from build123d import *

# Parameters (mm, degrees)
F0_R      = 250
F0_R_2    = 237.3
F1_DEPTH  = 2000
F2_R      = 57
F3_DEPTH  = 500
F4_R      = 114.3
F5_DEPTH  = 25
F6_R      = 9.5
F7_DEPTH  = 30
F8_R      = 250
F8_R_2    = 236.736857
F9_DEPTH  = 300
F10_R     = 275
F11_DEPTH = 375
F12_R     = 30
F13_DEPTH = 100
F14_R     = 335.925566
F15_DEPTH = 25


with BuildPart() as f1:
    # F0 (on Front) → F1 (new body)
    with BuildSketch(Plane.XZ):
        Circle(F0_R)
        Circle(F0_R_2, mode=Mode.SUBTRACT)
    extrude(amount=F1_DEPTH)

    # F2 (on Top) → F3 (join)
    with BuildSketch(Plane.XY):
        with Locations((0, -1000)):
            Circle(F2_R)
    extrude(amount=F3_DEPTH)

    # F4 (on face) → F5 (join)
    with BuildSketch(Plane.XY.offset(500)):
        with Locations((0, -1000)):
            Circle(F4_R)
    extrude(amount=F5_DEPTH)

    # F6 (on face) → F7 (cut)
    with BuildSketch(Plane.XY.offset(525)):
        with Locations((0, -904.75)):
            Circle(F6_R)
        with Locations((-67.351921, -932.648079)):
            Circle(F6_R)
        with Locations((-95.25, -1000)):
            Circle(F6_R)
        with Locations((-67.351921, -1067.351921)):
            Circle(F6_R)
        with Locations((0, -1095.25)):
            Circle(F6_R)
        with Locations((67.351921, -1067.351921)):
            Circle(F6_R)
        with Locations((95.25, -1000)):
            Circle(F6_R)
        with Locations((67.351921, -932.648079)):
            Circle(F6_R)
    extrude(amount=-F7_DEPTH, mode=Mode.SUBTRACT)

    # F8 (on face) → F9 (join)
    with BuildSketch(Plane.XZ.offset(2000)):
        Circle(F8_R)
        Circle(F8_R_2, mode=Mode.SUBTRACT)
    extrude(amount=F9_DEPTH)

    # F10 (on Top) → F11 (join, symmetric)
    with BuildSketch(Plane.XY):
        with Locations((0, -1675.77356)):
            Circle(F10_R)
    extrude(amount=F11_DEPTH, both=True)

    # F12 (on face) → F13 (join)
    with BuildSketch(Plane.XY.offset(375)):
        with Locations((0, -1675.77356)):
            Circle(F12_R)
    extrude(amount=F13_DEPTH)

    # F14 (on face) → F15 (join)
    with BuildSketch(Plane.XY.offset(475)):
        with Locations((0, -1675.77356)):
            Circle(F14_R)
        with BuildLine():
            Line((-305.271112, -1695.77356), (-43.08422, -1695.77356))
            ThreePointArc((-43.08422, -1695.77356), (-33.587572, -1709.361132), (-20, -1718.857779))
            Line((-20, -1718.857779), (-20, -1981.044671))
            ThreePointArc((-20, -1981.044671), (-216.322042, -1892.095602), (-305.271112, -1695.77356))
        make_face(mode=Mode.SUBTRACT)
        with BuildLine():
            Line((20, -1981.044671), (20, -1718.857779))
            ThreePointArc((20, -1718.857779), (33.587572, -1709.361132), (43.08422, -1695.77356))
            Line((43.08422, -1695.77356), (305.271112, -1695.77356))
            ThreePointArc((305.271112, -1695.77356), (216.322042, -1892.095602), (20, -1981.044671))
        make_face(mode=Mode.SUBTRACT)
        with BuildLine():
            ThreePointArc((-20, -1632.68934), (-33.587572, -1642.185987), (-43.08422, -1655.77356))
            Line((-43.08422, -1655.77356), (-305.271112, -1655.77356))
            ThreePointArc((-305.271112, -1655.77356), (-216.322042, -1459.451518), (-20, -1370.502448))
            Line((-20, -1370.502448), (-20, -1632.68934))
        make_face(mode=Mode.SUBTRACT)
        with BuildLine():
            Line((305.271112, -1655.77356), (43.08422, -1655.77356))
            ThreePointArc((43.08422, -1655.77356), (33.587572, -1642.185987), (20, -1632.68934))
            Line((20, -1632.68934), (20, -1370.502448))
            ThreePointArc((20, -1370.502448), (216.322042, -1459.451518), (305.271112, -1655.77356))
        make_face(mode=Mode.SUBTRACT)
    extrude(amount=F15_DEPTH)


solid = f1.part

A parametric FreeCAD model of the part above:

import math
import FreeCAD as App
import Part
import Sketcher
Q = App.Units.Quantity

doc = App.newDocument("Part")
body = doc.addObject("PartDesign::Body", "Body")

sketch1 = body.newObject("Sketcher::SketchObject", "Sketch")
sketch1.AttachmentSupport = (doc.getObject("XZ_Plane"), [""])
sketch1.MapMode = "FlatFace"
sketch1.addGeometry([
    Part.Circle(App.Vector(0, 0, 0), App.Vector(0, 0, 1), 250),
    Part.Circle(App.Vector(0, 0, 0), App.Vector(0, 0, 1), 237.3),
], False)
sketch1.addConstraint([
    Sketcher.Constraint("Coincident", 0, 3, -1, 1),
    Sketcher.Constraint("Coincident", 1, 3, -1, 1),
    Sketcher.Constraint("Diameter", 0, Q("500 mm")),
    Sketcher.Constraint("Diameter", 1, Q("474.6 mm")),
])
pad1 = body.newObject("PartDesign::Pad", "Pad")
pad1.Profile = sketch1
pad1.Length = 2000

sketch2 = body.newObject("Sketcher::SketchObject", "Sketch001")
sketch2.AttachmentSupport = (doc.getObject("XY_Plane"), [""])
sketch2.MapMode = "FlatFace"
sketch2.addGeometry(Part.Circle(App.Vector(0, -1000, 0), App.Vector(0, 0, 1), 57), False)
sketch2.addConstraint([
    Sketcher.Constraint("PointOnObject", 0, 3, -2),
    Sketcher.Constraint("Diameter", 0, Q("114 mm")),
    Sketcher.Constraint("DistanceY", 0, 3, -1, 1, Q("1000 mm")),
])
pad2 = body.newObject("PartDesign::Pad", "Pad001")
pad2.Profile = sketch2
pad2.Length = 500

sketch3 = body.newObject("Sketcher::SketchObject", "Sketch002")
sketch3.AttachmentSupport = (doc.getObject("XY_Plane"), [""])
sketch3.MapMode = "FlatFace"
sketch3.AttachmentOffset = App.Placement(App.Vector(0, 0, 500), App.Rotation())
sketch3.addGeometry(Part.Circle(App.Vector(0, -1000, 0), App.Vector(0, 0, 1), 114.3), False)
sketch3.addConstraint([
    Sketcher.Constraint("PointOnObject", 0, 3, -2),
    Sketcher.Constraint("Diameter", 0, Q("228.6 mm")),
    Sketcher.Constraint("DistanceY", 0, 3, -1, 1, Q("1000 mm")),
])
pad3 = body.newObject("PartDesign::Pad", "Pad002")
pad3.Profile = sketch3
pad3.Length = 25

sketch4 = body.newObject("Sketcher::SketchObject", "Sketch003")
sketch4.AttachmentSupport = (doc.getObject("XY_Plane"), [""])
sketch4.MapMode = "FlatFace"
sketch4.AttachmentOffset = App.Placement(App.Vector(0, 0, 525), App.Rotation())
sketch4.addGeometry([
    Part.Circle(App.Vector(0, -904.75, 0), App.Vector(0, 0, 1), 9.5),
    Part.Circle(App.Vector(-67.351921, -932.648079, 0), App.Vector(0, 0, 1), 9.5),
    Part.Circle(App.Vector(-95.25, -1000, 0), App.Vector(0, 0, 1), 9.5),
    Part.Circle(App.Vector(-67.351921, -1067.351921, 0), App.Vector(0, 0, 1), 9.5),
    Part.Circle(App.Vector(0, -1095.25, 0), App.Vector(0, 0, 1), 9.5),
    Part.Circle(App.Vector(67.351921, -1067.351921, 0), App.Vector(0, 0, 1), 9.5),
    Part.Circle(App.Vector(95.25, -1000, 0), App.Vector(0, 0, 1), 9.5),
    Part.Circle(App.Vector(67.351921, -932.648079, 0), App.Vector(0, 0, 1), 9.5),
], False)
sketch4.addConstraint([
    Sketcher.Constraint("Equal", 0, 1),
    Sketcher.Constraint("Equal", 1, 2),
    Sketcher.Constraint("Equal", 2, 3),
    Sketcher.Constraint("Equal", 3, 4),
    Sketcher.Constraint("Equal", 4, 5),
    Sketcher.Constraint("Equal", 5, 6),
    Sketcher.Constraint("Equal", 6, 7),
    Sketcher.Constraint("Symmetric", 3, 3, 5, 3, -2),
    Sketcher.Constraint("Symmetric", 2, 3, 6, 3, -2),
    Sketcher.Constraint("Symmetric", 1, 3, 7, 3, -2),
    Sketcher.Constraint("PointOnObject", 0, 3, -2),
    Sketcher.Constraint("PointOnObject", 4, 3, -2),
    Sketcher.Constraint("Vertical", 1, 3, 3, 3),
    Sketcher.Constraint("Diameter", 0, Q("19 mm")),
    Sketcher.Constraint("DistanceY", 2, 3, -1, 1, Q("1000 mm")),
    Sketcher.Constraint("DistanceY", 4, 3, 0, 3, Q("190.5 mm")),
    Sketcher.Constraint("DistanceY", 0, 3, -1, 1, Q("904.75 mm")),
    Sketcher.Constraint("DistanceX", 2, 3, -1, 1, Q("95.25 mm")),
    Sketcher.Constraint("DistanceX", 1, 3, -1, 1, Q("67.351921 mm")),
    Sketcher.Constraint("DistanceY", 1, 3, -1, 1, Q("932.648079 mm")),
    Sketcher.Constraint("DistanceY", 3, 3, -1, 1, Q("1067.351921 mm")),
])
pocket1 = body.newObject("PartDesign::Pocket", "Pocket")
pocket1.Profile = sketch4
pocket1.Length = 30

sketch5 = body.newObject("Sketcher::SketchObject", "Sketch004")
sketch5.AttachmentSupport = (doc.getObject("XZ_Plane"), [""])
sketch5.MapMode = "FlatFace"
sketch5.AttachmentOffset = App.Placement(App.Vector(0, 0, 2000), App.Rotation())
sketch5.addGeometry([
    Part.Circle(App.Vector(0, 0, 0), App.Vector(0, 0, 1), 250),
    Part.Circle(App.Vector(0, 0, 0), App.Vector(0, 0, 1), 236.736857),
], False)
sketch5.addConstraint([
    Sketcher.Constraint("Coincident", 0, 3, -1, 1),
    Sketcher.Constraint("Coincident", 1, 3, -1, 1),
    Sketcher.Constraint("Diameter", 0, Q("500 mm")),
    Sketcher.Constraint("Diameter", 1, Q("473.473714 mm")),
])
pad4 = body.newObject("PartDesign::Pad", "Pad003")
pad4.Profile = sketch5
pad4.Length = 300

sketch6 = body.newObject("Sketcher::SketchObject", "Sketch005")
sketch6.AttachmentSupport = (doc.getObject("XY_Plane"), [""])
sketch6.MapMode = "FlatFace"
sketch6.addGeometry(Part.Circle(App.Vector(0, -1675.77356, 0), App.Vector(0, 0, 1), 275), False)
sketch6.addConstraint([
    Sketcher.Constraint("PointOnObject", 0, 3, -2),
    Sketcher.Constraint("Diameter", 0, Q("550 mm")),
    Sketcher.Constraint("DistanceY", 0, 3, -1, 1, Q("1675.77356 mm")),
])
pad5 = body.newObject("PartDesign::Pad", "Pad004")
pad5.Profile = sketch6
pad5.Length = 750
pad5.Midplane = True

sketch7 = body.newObject("Sketcher::SketchObject", "Sketch006")
sketch7.AttachmentSupport = (doc.getObject("XY_Plane"), [""])
sketch7.MapMode = "FlatFace"
sketch7.AttachmentOffset = App.Placement(App.Vector(0, 0, 375), App.Rotation())
sketch7.addGeometry(Part.Circle(App.Vector(0, -1675.77356, 0), App.Vector(0, 0, 1), 30), False)
sketch7.addConstraint([
    Sketcher.Constraint("PointOnObject", 0, 3, -2),
    Sketcher.Constraint("Diameter", 0, Q("60 mm")),
    Sketcher.Constraint("DistanceY", 0, 3, -1, 1, Q("1675.77356 mm")),
])
pad6 = body.newObject("PartDesign::Pad", "Pad005")
pad6.Profile = sketch7
pad6.Length = 100

sketch8 = body.newObject("Sketcher::SketchObject", "Sketch007")
sketch8.AttachmentSupport = (doc.getObject("XY_Plane"), [""])
sketch8.MapMode = "FlatFace"
sketch8.AttachmentOffset = App.Placement(App.Vector(0, 0, 475), App.Rotation())
sketch8.addGeometry([
    Part.Circle(App.Vector(0, -1675.77356, 0), App.Vector(0, 0, 1), 335.925566),
    Part.ArcOfCircle(Part.Circle(App.Vector(-0.000001, -1675.77356, 0), App.Vector(0, 0, 1), 305.925564), math.radians(-176.251593), math.radians(-93.748406)),
    Part.LineSegment(App.Vector(-305.271112, -1695.77356, 0), App.Vector(-43.08422, -1695.77356, 0)),
    Part.ArcOfCircle(Part.Circle(App.Vector(-0.000003, -1675.773561, 0), App.Vector(0, 0, 1), 47.499997), math.radians(-155.098937), math.radians(-114.90106)),
    Part.LineSegment(App.Vector(-20, -1718.857779, 0), App.Vector(-20, -1981.044671, 0)),
    Part.ArcOfCircle(Part.Circle(App.Vector(0.000001, -1675.77356, 0), App.Vector(0, 0, 1), 305.925564), math.radians(-86.251594), math.radians(-3.748407)),
    Part.LineSegment(App.Vector(20, -1981.044671, 0), App.Vector(20, -1718.857779, 0)),
    Part.ArcOfCircle(Part.Circle(App.Vector(0.000003, -1675.773561, 0), App.Vector(0, 0, 1), 47.499997), math.radians(-65.09894), math.radians(-24.901063)),
    Part.LineSegment(App.Vector(43.08422, -1695.77356, 0), App.Vector(305.271112, -1695.77356, 0)),
    Part.LineSegment(App.Vector(-20, -1370.502448, 0), App.Vector(-20, -1632.68934, 0)),
    Part.ArcOfCircle(Part.Circle(App.Vector(-0.000005, -1675.773555, 0), App.Vector(0, 0, 1), 47.499994), math.radians(114.901059), math.radians(155.098941)),
    Part.LineSegment(App.Vector(-43.08422, -1655.77356, 0), App.Vector(-305.271112, -1655.77356, 0)),
    Part.ArcOfCircle(Part.Circle(App.Vector(0.000001, -1675.773561, 0), App.Vector(0, 0, 1), 305.925566), math.radians(93.748407), math.radians(176.251593)),
    Part.ArcOfCircle(Part.Circle(App.Vector(-0.000001, -1675.773561, 0), App.Vector(0, 0, 1), 305.925566), math.radians(3.748407), math.radians(86.251593)),
    Part.LineSegment(App.Vector(305.271112, -1655.77356, 0), App.Vector(43.08422, -1655.77356, 0)),
    Part.ArcOfCircle(Part.Circle(App.Vector(0.000005, -1675.773555, 0), App.Vector(0, 0, 1), 47.499994), math.radians(24.901059), math.radians(65.098941)),
    Part.LineSegment(App.Vector(20, -1632.68934, 0), App.Vector(20, -1370.502448, 0)),
], False)
sketch8.addConstraint([
    Sketcher.Constraint("Coincident", 1, 1, 2, 1),
    Sketcher.Constraint("Coincident", 2, 2, 3, 1),
    Sketcher.Constraint("Coincident", 3, 2, 4, 1),
    Sketcher.Constraint("Coincident", 4, 2, 1, 2),
    Sketcher.Constraint("Coincident", 5, 1, 6, 1),
    Sketcher.Constraint("Coincident", 6, 2, 7, 1),
    Sketcher.Constraint("Coincident", 7, 2, 8, 1),
    Sketcher.Constraint("Coincident", 8, 2, 5, 2),
    Sketcher.Constraint("Coincident", 9, 2, 10, 1),
    Sketcher.Constraint("Coincident", 10, 2, 11, 1),
    Sketcher.Constraint("Coincident", 11, 2, 12, 2),
    Sketcher.Constraint("Coincident", 12, 1, 9, 1),
    Sketcher.Constraint("Coincident", 13, 1, 14, 1),
    Sketcher.Constraint("Coincident", 14, 2, 15, 1),
    Sketcher.Constraint("Coincident", 15, 2, 16, 1),
    Sketcher.Constraint("Coincident", 16, 2, 13, 2),
    Sketcher.Constraint("Horizontal", 2),
    Sketcher.Constraint("Vertical", 4),
    Sketcher.Constraint("Vertical", 6),
    Sketcher.Constraint("Horizontal", 8),
    Sketcher.Constraint("Vertical", 9),
    Sketcher.Constraint("Horizontal", 11),
    Sketcher.Constraint("Horizontal", 14),
    Sketcher.Constraint("Vertical", 16),
    Sketcher.Constraint("Coincident", 1, 3, 0, 3),
    Sketcher.Constraint("Coincident", 3, 3, 0, 3),
    Sketcher.Constraint("Coincident", 5, 3, 0, 3),
    Sketcher.Constraint("Coincident", 7, 3, 0, 3),
    Sketcher.Constraint("Coincident", 10, 3, 0, 3),
    Sketcher.Constraint("Coincident", 12, 3, 0, 3),
    Sketcher.Constraint("Coincident", 13, 3, 0, 3),
    Sketcher.Constraint("Coincident", 15, 3, 0, 3),
    Sketcher.Constraint("Equal", 1, 5),
    Sketcher.Constraint("Equal", 3, 7),
    Sketcher.Constraint("Equal", 12, 13),
    Sketcher.Constraint("Equal", 10, 15),
    Sketcher.Constraint("Symmetric", 3, 2, 6, 2, -2),
    Sketcher.Constraint("Horizontal", 2, 2, 7, 2),
    Sketcher.Constraint("Horizontal", 11, 2, 13, 1),
    Sketcher.Constraint("Horizontal", 9, 2, 15, 2),
    Sketcher.Constraint("Vertical", 4, 2, 9, 2),
    Sketcher.Constraint("Vertical", 2, 2, 10, 2),
    Sketcher.Constraint("Vertical", 1, 1, 11, 2),
    Sketcher.Constraint("Equal", 14, 4),
    Sketcher.Constraint("Equal", 6, 9),
    Sketcher.Constraint("DistanceX", 3, 2, -1, 1, Q("20 mm")),
    Sketcher.Constraint("Diameter", 0, Q("671.851132 mm")),
    Sketcher.Constraint("Radius", 1, Q("305.925564 mm")),
    Sketcher.Constraint("Radius", 3, Q("47.499997 mm")),
    Sketcher.Constraint("DistanceY", 0, 3, -1, 1, Q("1675.77356 mm")),
])
pad7 = body.newObject("PartDesign::Pad", "Pad006")
pad7.Profile = sketch8
pad7.Length = 25

doc.recompute()
